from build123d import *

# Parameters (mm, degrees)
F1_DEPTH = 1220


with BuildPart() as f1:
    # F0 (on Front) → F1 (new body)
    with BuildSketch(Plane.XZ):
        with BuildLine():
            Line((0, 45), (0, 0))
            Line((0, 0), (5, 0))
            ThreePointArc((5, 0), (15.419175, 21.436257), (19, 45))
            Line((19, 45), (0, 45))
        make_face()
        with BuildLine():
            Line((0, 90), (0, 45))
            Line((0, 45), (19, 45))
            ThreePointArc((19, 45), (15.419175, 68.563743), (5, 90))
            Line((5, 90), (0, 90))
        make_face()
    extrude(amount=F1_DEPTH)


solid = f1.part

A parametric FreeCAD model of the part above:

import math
import FreeCAD as App
import Part
import Sketcher

V = App.Vector
Q = App.Units.Quantity

doc = App.newDocument("Part")
body = doc.addObject("PartDesign::Body", "Body")

# Sketch on XZ plane
sketch1 = body.newObject("Sketcher::SketchObject", "Sketch")
sketch1.AttachmentSupport = (doc.getObject("XZ_Plane"), [""])
sketch1.MapMode = "FlatFace"
sketch1.addGeometry(Part.LineSegment(V(0, 0, 0), V(5, 0, 0)), False)
sketch1.addGeometry(Part.ArcOfCircle(Part.Circle(V(-60.321431, 45.000001, 0), V(0, 0, 1), 79.321431), math.radians(-34.562996), math.radians(-0.000001)), False)
sketch1.addGeometry(Part.ArcOfCircle(Part.Circle(V(-60.321431, 44.999999, 0), V(0, 0, 1), 79.321431), math.radians(0.000001), math.radians(34.562996)), False)
sketch1.addGeometry(Part.LineSegment(V(5, 90, 0), V(0, 90, 0)), False)
sketch1.addGeometry(Part.LineSegment(V(0, 90, 0), V(0, 0, 0)), False)
sketch1.addConstraint(Sketcher.Constraint("Coincident", 0, 2, 1, 1))
sketch1.addConstraint(Sketcher.Constraint("Tangent", 1, 2, 2, 1))
sketch1.addConstraint(Sketcher.Constraint("Coincident", 2, 2, 3, 1))
sketch1.addConstraint(Sketcher.Constraint("Coincident", 3, 2, 4, 1))
sketch1.addConstraint(Sketcher.Constraint("Coincident", 4, 2, 0, 1))
sketch1.addConstraint(Sketcher.Constraint("Horizontal", 0))
sketch1.addConstraint(Sketcher.Constraint("Horizontal", 3))
sketch1.addConstraint(Sketcher.Constraint("Vertical", 4))
sketch1.addConstraint(Sketcher.Constraint("Coincident", 4, 2, -1, 1))
sketch1.addConstraint(Sketcher.Constraint("Equal", 1, 2))
sketch1.addConstraint(Sketcher.Constraint("Horizontal", 2, 3, 1, 2))
sketch1.addConstraint(Sketcher.Constraint("Vertical", 0, 2, 2, 2))
sketch1.addConstraint(Sketcher.Constraint("DistanceX", 0, 1, 0, 2, Q("5 mm")))
sketch1.addConstraint(Sketcher.Constraint("DistanceY", 4, 2, 4, 1, Q("90 mm")))
sketch1.addConstraint(Sketcher.Constraint("DistanceX", -1, 1, 1, 2, Q("19 mm")))
pad1 = body.newObject("PartDesign::Pad", "Pad")
pad1.Profile = sketch1
pad1.Length = 1220

doc.recompute()
